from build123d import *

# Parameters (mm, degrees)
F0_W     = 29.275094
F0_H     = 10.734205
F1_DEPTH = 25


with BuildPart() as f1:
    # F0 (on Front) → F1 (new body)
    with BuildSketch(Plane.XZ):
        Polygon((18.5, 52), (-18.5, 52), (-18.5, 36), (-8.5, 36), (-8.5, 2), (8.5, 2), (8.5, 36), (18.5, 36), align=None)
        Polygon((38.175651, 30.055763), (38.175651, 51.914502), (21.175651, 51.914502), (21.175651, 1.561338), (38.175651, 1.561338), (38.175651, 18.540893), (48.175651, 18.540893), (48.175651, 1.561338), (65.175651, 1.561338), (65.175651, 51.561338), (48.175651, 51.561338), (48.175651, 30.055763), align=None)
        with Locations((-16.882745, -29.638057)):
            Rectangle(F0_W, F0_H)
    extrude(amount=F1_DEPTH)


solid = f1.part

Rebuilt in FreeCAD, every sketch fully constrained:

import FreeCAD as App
import Part
import Sketcher

V = App.Vector


def add_polygon(sketch, points):
    """Adds a closed chain of lines whose ends are joined by coincident constraints."""
    first, n = sketch.GeometryCount, len(points)
    for a, b in zip(points, points[1:] + points[:1]):
        sketch.addGeometry(Part.LineSegment(App.Vector(*a, 0), App.Vector(*b, 0)), False)
    for i in range(n):
        sketch.addConstraint(Sketcher.Constraint("Coincident", first + i, 2, first + (i + 1) % n, 1))

doc = App.newDocument("Part")
body = doc.addObject("PartDesign::Body", "Body")
body.AllowCompound = True

sketch1 = doc.addObject("Sketcher::SketchObject", "Sketch")
body.addObject(sketch1)
sketch1.AttachmentSupport = (doc.XZ_Plane, [""])
sketch1.MapMode = "FlatFace"
add_polygon(sketch1, [(18, 52), (-18, 52), (-18, 36), (-8, 36), (-8, 2), (8, 2), (8, 36), (18, 36)])
add_polygon(sketch1, [(38, 30), (38, 52), (21, 52), (21, 2), (38, 2), (38, 19), (48, 19), (48, 2), (65, 2), (65, 52), (48, 52), (48, 30)])
add_polygon(sketch1, [(-32, -24), (-32, -35), (-2, -35), (-2, -24)])
sketch1.addConstraint([
    Sketcher.Constraint("Horizontal", 0),
    Sketcher.Constraint("Vertical", 1),
    Sketcher.Constraint("Horizontal", 2),
    Sketcher.Constraint("Vertical", 3),
    Sketcher.Constraint("Horizontal", 4),
    Sketcher.Constraint("Vertical", 5),
    Sketcher.Constraint("Horizontal", 6),
    Sketcher.Constraint("Vertical", 7),
    Sketcher.Constraint("Vertical", 8),
    Sketcher.Constraint("Horizontal", 9),
    Sketcher.Constraint("Vertical", 10),
    Sketcher.Constraint("Horizontal", 11),
    Sketcher.Constraint("Vertical", 12),
    Sketcher.Constraint("Horizontal", 13),
    Sketcher.Constraint("Vertical", 14),
    Sketcher.Constraint("Horizontal", 15),
    Sketcher.Constraint("Vertical", 16),
    Sketcher.Constraint("Horizontal", 17),
    Sketcher.Constraint("Vertical", 18),
    Sketcher.Constraint("Horizontal", 19),
    Sketcher.Constraint("Vertical", 20),
    Sketcher.Constraint("Horizontal", 21),
    Sketcher.Constraint("Vertical", 22),
    Sketcher.Constraint("Horizontal", 23),
    Sketcher.Constraint("Symmetric", 2, 2, 5, 2, -2),
    Sketcher.Constraint("Horizontal", 11, 2, 14, 2),
    Sketcher.Constraint("Vertical", 8, 2, 11, 2),
    Sketcher.Constraint("Vertical", 14, 2, 17, 2),
    Sketcher.Constraint("Equal", 2, 6),
    Sketcher.Constraint("Equal", 4, 9),
    Sketcher.Constraint("Equal", 6, 13),
    Sketcher.Constraint("Equal", 11, 15),
    Sketcher.Constraint("DistanceX", 0, 2, 0, 1, 37.0),
    Sketcher.Constraint("DistanceX", 2, 1, 2, 2, 10.0),
    Sketcher.Constraint("DistanceY", 1, 2, 1, 1, 16.0),
    Sketcher.Constraint("DistanceY", 3, 2, 3, 1, 34.0),
    Sketcher.Constraint("DistanceY", 16, 1, 16, 2, 50.0),
    Sketcher.Constraint("DistanceY", -1, 1, 0, 2, 52.0),
    Sketcher.Constraint("DistanceY", 8, 1, 8, 2, 21.858739),
    Sketcher.Constraint("DistanceY", 8, 2, 7, 2, 0.085498),
    Sketcher.Constraint("DistanceX", 3, 2, 21, 2, 6.254802),
    Sketcher.Constraint("DistanceX", 21, 1, 21, 2, 29.275094),
    Sketcher.Constraint("DistanceY", 10, 2, 10, 1, 50.353164),
    Sketcher.Constraint("DistanceY", 12, 1, 12, 2, 16.979555),
    Sketcher.Constraint("DistanceY", 20, 2, 20, 1, 10.734205),
    Sketcher.Constraint("DistanceX", -1, 1, 8, 2, 38.175651),
    Sketcher.Constraint("DistanceY", 20, 2, -1, 1, 35.005159),
])
pad1 = doc.addObject("PartDesign::Pad", "Pad")
body.addObject(pad1)
pad1.Profile = sketch1
pad1.Length = 25

doc.recompute()
